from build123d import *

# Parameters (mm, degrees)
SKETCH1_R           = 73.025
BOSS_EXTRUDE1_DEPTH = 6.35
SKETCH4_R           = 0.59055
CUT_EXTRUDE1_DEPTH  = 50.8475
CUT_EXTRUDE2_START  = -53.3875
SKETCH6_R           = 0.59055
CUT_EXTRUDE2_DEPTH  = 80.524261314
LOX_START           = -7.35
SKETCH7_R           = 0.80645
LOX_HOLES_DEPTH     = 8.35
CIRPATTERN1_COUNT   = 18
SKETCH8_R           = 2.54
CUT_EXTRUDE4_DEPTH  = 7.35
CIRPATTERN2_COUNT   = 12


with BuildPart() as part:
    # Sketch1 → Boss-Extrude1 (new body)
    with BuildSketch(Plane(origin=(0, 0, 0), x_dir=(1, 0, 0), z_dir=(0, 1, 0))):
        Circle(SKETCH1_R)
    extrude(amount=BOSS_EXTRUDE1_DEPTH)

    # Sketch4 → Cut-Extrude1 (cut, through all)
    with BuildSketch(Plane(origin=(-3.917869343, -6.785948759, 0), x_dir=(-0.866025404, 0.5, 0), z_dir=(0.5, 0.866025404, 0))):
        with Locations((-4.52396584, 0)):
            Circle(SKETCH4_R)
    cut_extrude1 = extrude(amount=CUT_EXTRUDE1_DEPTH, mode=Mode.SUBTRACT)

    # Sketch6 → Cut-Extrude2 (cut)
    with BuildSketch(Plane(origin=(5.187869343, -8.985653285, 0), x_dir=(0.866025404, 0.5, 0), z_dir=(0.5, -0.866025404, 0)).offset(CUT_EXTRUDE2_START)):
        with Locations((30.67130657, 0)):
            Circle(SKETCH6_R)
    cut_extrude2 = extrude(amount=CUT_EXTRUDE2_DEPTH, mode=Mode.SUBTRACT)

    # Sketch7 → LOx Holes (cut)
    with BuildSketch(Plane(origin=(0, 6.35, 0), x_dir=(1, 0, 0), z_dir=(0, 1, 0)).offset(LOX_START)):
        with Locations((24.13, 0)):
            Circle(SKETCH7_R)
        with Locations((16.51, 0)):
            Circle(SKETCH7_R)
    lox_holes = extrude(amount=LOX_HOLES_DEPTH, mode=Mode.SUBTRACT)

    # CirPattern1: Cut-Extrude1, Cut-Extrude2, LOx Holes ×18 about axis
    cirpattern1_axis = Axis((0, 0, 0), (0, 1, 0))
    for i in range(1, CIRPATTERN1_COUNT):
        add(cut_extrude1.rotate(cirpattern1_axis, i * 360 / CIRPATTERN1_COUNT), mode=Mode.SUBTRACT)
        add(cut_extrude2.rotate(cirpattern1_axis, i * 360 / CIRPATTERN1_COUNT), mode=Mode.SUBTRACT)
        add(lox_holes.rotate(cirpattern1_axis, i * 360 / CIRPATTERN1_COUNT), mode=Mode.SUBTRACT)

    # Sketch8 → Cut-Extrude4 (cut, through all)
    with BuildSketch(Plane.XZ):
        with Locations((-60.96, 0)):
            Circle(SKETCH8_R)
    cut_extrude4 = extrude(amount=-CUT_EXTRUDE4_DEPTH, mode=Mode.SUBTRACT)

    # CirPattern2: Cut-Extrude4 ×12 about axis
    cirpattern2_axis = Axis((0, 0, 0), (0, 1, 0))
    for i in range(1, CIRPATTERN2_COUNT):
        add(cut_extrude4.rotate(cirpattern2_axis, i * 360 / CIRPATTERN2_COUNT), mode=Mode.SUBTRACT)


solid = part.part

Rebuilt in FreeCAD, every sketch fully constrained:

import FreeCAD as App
import Part
import Sketcher

V = App.Vector
Q = App.Units.Quantity

doc = App.newDocument("Part")
body = doc.addObject("PartDesign::Body", "Body")

# Sketch on XZ plane
sketch1 = body.newObject("Sketcher::SketchObject", "Sketch")
sketch1.AttachmentSupport = (doc.getObject("XZ_Plane"), [""])
sketch1.MapMode = "FlatFace"
sketch1.addGeometry(Part.Circle(V(0, 0, 0), V(0, 0, 1), 73.025), False)
sketch1.addConstraint(Sketcher.Constraint("Coincident", 0, 3, -1, 1))
sketch1.addConstraint(Sketcher.Constraint("Diameter", 0, Q("5.75 in")))
pad1 = body.newObject("PartDesign::Pad", "Pad")
pad1.Profile = sketch1
pad1.Length = Q("0.25 in")
pad1.Reversed = True

# Sketch on an angled plane
sketch2 = body.newObject("Sketcher::SketchObject", "Sketch001")
sketch2.Placement = App.Placement(V(-3.917869, -6.785949, 0), App.Rotation(V(-0.866025404, 0.5, 0), V(0, 0, 1), V(0.5, 0.866025404, 0), "ZXY"))
sketch2.addGeometry(Part.Circle(V(-4.523966, 0, 0), V(0, 0, 1), 0.59055), False)
sketch2.addConstraint(Sketcher.Constraint("PointOnObject", 0, 3, -1))
sketch2.addConstraint(Sketcher.Constraint("Diameter", 0, Q("0.0465 in")))
sketch2.addConstraint(Sketcher.Constraint("DistanceX", 0, 3, -1, 1, 4.523966))
pocket1 = body.newObject("PartDesign::Pocket", "Pocket")
pocket1.Profile = sketch2
pocket1.Type = "ThroughAll"
pocket1.Reversed = True

# Sketch on an angled plane
sketch3 = body.newObject("Sketcher::SketchObject", "Sketch002")
sketch3.Placement = App.Placement(V(-21.505881, 37.249278, 0), App.Rotation(V(0.866025404, 0.5, 0), V(0, 0, 1), V(0.5, -0.866025404, 0), "ZXY"))
sketch3.addGeometry(Part.Circle(V(30.671307, 0, 0), V(0, 0, 1), 0.59055), False)
sketch3.addConstraint(Sketcher.Constraint("PointOnObject", 0, 3, -1))
sketch3.addConstraint(Sketcher.Constraint("Diameter", 0, Q("0.0465 in")))
sketch3.addConstraint(Sketcher.Constraint("DistanceX", -1, 1, 0, 3, 30.671307))
pocket2 = body.newObject("PartDesign::Pocket", "Pocket001")
pocket2.Profile = sketch3
pocket2.Length = 80.524261
pocket2.Reversed = True

# Sketch on XZ plane
sketch4 = body.newObject("Sketcher::SketchObject", "Sketch003")
sketch4.AttachmentSupport = (doc.getObject("XZ_Plane"), [""])
sketch4.MapMode = "FlatFace"
sketch4.AttachmentOffset = App.Placement(V(0, 0, 1), App.Rotation())
sketch4.addGeometry(Part.Circle(V(24.13, 0, 0), V(0, 0, 1), 0.80645), False)
sketch4.addGeometry(Part.Circle(V(16.51, 0, 0), V(0, 0, 1), 0.80645), False)
sketch4.addConstraint(Sketcher.Constraint("Equal", 0, 1))
sketch4.addConstraint(Sketcher.Constraint("PointOnObject", 0, 3, -1))
sketch4.addConstraint(Sketcher.Constraint("PointOnObject", 1, 3, -1))
sketch4.addConstraint(Sketcher.Constraint("Diameter", 0, Q("0.0635 in")))
sketch4.addConstraint(Sketcher.Constraint("DistanceX", 1, 3, 0, 3, Q("0.3 in")))
sketch4.addConstraint(Sketcher.Constraint("DistanceX", -1, 1, 0, 3, Q("0.95 in")))
pocket3 = body.newObject("PartDesign::Pocket", "Pocket002")
pocket3.Profile = sketch4
pocket3.Length = 8.35
doc.recompute()

polarpattern = body.newObject("PartDesign::PolarPattern", "PolarPattern")
polarpattern.Originals = [pocket1, pocket2, pocket3]
polarpattern.Axis = (doc.getObject("Y_Axis"), [""])
polarpattern.Angle = 360
polarpattern.Occurrences = 18
body.Tip = polarpattern

# Sketch on XZ plane
sketch5 = body.newObject("Sketcher::SketchObject", "Sketch004")
sketch5.AttachmentSupport = (doc.getObject("XZ_Plane"), [""])
sketch5.MapMode = "FlatFace"
sketch5.addGeometry(Part.Circle(V(-60.96, 0, 0), V(0, 0, 1), 2.54), False)
sketch5.addConstraint(Sketcher.Constraint("PointOnObject", 0, 3, -1))
sketch5.addConstraint(Sketcher.Constraint("Diameter", 0, Q("0.2 in")))
sketch5.addConstraint(Sketcher.Constraint("DistanceX", 0, 3, -1, 1, Q("2.4 in")))
pocket4 = body.newObject("PartDesign::Pocket", "Pocket003")
pocket4.Profile = sketch5
pocket4.Type = "ThroughAll"
doc.recompute()

polarpattern2 = body.newObject("PartDesign::PolarPattern", "PolarPattern001")
polarpattern2.Originals = [pocket4]
polarpattern2.Axis = (doc.getObject("Y_Axis"), [""])
polarpattern2.Angle = 360
polarpattern2.Occurrences = 12
body.Tip = polarpattern2

doc.recompute()
